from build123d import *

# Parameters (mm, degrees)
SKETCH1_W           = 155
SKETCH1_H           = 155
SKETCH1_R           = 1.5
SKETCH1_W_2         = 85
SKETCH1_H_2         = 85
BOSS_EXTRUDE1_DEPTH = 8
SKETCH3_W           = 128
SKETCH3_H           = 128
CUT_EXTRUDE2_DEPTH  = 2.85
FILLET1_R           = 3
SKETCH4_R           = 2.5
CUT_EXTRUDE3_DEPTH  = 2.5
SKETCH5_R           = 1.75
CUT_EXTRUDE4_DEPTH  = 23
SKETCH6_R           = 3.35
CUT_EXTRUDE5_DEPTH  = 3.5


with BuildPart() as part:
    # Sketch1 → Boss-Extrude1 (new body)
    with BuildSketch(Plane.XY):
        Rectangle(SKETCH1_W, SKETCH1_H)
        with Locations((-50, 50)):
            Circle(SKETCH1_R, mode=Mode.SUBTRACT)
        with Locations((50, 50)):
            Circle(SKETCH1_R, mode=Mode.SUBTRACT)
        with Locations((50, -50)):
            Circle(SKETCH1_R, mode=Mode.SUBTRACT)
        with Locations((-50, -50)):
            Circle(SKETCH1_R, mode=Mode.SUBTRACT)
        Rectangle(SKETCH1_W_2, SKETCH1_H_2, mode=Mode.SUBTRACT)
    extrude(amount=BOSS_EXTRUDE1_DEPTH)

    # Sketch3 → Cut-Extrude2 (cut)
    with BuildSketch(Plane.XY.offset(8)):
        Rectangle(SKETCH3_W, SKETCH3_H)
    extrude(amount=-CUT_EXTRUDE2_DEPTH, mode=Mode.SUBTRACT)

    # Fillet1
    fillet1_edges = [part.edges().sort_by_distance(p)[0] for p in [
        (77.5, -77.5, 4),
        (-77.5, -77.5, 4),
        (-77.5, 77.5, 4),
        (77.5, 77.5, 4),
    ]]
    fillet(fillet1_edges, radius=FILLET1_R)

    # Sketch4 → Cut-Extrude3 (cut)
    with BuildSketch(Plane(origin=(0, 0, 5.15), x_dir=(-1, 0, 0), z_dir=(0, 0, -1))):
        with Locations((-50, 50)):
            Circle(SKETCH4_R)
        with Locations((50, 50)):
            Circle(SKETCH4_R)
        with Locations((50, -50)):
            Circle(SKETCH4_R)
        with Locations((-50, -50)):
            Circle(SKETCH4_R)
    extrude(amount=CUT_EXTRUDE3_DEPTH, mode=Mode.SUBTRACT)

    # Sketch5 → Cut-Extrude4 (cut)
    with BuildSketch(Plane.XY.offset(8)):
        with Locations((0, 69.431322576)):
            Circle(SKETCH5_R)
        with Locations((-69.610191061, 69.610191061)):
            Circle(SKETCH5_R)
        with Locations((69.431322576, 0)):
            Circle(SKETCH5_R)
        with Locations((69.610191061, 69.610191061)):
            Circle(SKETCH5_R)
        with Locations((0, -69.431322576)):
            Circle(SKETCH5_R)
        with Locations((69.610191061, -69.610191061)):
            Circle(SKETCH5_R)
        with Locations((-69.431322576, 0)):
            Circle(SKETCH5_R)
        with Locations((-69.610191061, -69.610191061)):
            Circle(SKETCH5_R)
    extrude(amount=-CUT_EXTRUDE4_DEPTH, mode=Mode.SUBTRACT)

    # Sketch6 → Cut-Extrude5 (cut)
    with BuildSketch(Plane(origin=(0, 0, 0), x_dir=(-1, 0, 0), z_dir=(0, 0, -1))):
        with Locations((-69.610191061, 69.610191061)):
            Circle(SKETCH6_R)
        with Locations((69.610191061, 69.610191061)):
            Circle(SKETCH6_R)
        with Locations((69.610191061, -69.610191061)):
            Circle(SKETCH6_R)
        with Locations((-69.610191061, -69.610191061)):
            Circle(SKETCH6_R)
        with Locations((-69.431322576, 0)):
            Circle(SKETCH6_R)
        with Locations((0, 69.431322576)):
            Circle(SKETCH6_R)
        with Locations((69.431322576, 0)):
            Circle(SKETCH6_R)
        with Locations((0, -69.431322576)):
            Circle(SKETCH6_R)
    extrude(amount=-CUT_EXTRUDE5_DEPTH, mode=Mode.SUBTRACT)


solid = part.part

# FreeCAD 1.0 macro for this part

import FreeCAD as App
import Part
import Sketcher
from FreeCAD import Vector
Q = App.Units.Quantity


def edges_at(feature, points):
    """Names of the edges that pass closest to the given points."""
    edges = feature.Shape.Edges
    near = lambda p: min(range(len(edges)), key=lambda i: edges[i].distToShape(Part.Vertex(*p))[0])
    return sorted({f"Edge{near(p) + 1}" for p in points})

doc = App.newDocument("Part")
body = doc.addObject("PartDesign::Body", "Body")

# Sketch on XY plane
sketch1 = doc.addObject("Sketcher::SketchObject", "Sketch")
body.addObject(sketch1)
sketch1.AttachmentSupport = (doc.XY_Plane, [""])
sketch1.MapMode = "FlatFace"
sketch1.addGeometry([
    Part.LineSegment(Vector(-77.5, 77.5, 0), Vector(-77.5, -77.5, 0)),  # 0
    Part.LineSegment(Vector(-77.5, -77.5, 0), Vector(77.5, -77.5, 0)),  # 1
    Part.LineSegment(Vector(77.5, -77.5, 0), Vector(77.5, 77.5, 0)),  # 2
    Part.LineSegment(Vector(77.5, 77.5, 0), Vector(-77.5, 77.5, 0)),  # 3
    Part.Circle(Vector(-50, -50, 0), Vector(0, 0, 1), 1.5),  # 4
    Part.LineSegment(Vector(42.5, -42.5, 0), Vector(-42.5, -42.5, 0)),  # 5
    Part.LineSegment(Vector(-42.5, -42.5, 0), Vector(-42.5, 42.5, 0)),  # 6
    Part.LineSegment(Vector(-42.5, 42.5, 0), Vector(42.5, 42.5, 0)),  # 7
    Part.LineSegment(Vector(42.5, 42.5, 0), Vector(42.5, -42.5, 0)),  # 8
    Part.Circle(Vector(50, -50, 0), Vector(0, 0, 1), 1.5),  # 9
    Part.Circle(Vector(-50, 50, 0), Vector(0, 0, 1), 1.5),  # 10
    Part.Circle(Vector(50, 50, 0), Vector(0, 0, 1), 1.5),  # 11
], False)
sketch1.addConstraint([
    Sketcher.Constraint("Coincident", 0, 2, 1, 1),
    Sketcher.Constraint("Coincident", 1, 2, 2, 1),
    Sketcher.Constraint("Coincident", 2, 2, 3, 1),
    Sketcher.Constraint("Coincident", 3, 2, 0, 1),
    Sketcher.Constraint("Coincident", 5, 2, 6, 1),
    Sketcher.Constraint("Coincident", 6, 2, 7, 1),
    Sketcher.Constraint("Coincident", 7, 2, 8, 1),
    Sketcher.Constraint("Coincident", 8, 2, 5, 1),
    Sketcher.Constraint("Vertical", 0),
    Sketcher.Constraint("Horizontal", 1),
    Sketcher.Constraint("Vertical", 2),
    Sketcher.Constraint("Horizontal", 3),
    Sketcher.Constraint("Horizontal", 5),
    Sketcher.Constraint("Vertical", 6),
    Sketcher.Constraint("Horizontal", 7),
    Sketcher.Constraint("Vertical", 8),
    Sketcher.Constraint("Equal", 4, 9),
    Sketcher.Constraint("Equal", 9, 10),
    Sketcher.Constraint("Equal", 10, 11),
    Sketcher.Constraint("Symmetric", 9, 3, 10, 3, -1, 1),
    Sketcher.Constraint("Symmetric", 4, 3, 11, 3, -1, 1),
    Sketcher.Constraint("Symmetric", 0, 2, 2, 2, -1, 1),
    Sketcher.Constraint("Symmetric", 5, 2, 7, 2, -1, 1),
    Sketcher.Constraint("Symmetric", 4, 3, 9, 3, -2),
    Sketcher.Constraint("Equal", 3, 0),
    Sketcher.Constraint("Equal", 7, 6),
    Sketcher.Constraint("Diameter", 4, Q("3 mm")),
    Sketcher.Constraint("DistanceX", 1, 1, 1, 2, Q("155 mm")),
    Sketcher.Constraint("DistanceX", 5, 2, 5, 1, Q("85 mm")),
    Sketcher.Constraint("DistanceX", 4, 3, -1, 1, Q("50 mm")),
    Sketcher.Constraint("DistanceY", 4, 3, -1, 1, Q("50 mm")),
])
pad1 = doc.addObject("PartDesign::Pad", "Pad")
body.addObject(pad1)
pad1.Profile = sketch1
pad1.Length = 8

# Sketch on XY plane
sketch2 = doc.addObject("Sketcher::SketchObject", "Sketch001")
body.addObject(sketch2)
sketch2.AttachmentSupport = (doc.XY_Plane, [""])
sketch2.MapMode = "FlatFace"
sketch2.AttachmentOffset = App.Placement(Vector(0, 0, 8), App.Rotation())
sketch2.addGeometry([
    Part.LineSegment(Vector(-64, 64, 0), Vector(-64, -64, 0)),
    Part.LineSegment(Vector(-64, -64, 0), Vector(64, -64, 0)),
    Part.LineSegment(Vector(64, -64, 0), Vector(64, 64, 0)),
    Part.LineSegment(Vector(64, 64, 0), Vector(-64, 64, 0)),
], False)
sketch2.addConstraint([
    Sketcher.Constraint("Coincident", 0, 2, 1, 1),
    Sketcher.Constraint("Coincident", 1, 2, 2, 1),
    Sketcher.Constraint("Coincident", 2, 2, 3, 1),
    Sketcher.Constraint("Coincident", 3, 2, 0, 1),
    Sketcher.Constraint("Vertical", 0),
    Sketcher.Constraint("Horizontal", 1),
    Sketcher.Constraint("Vertical", 2),
    Sketcher.Constraint("Horizontal", 3),
    Sketcher.Constraint("Symmetric", 0, 2, 2, 2, -1, 1),
    Sketcher.Constraint("Equal", 3, 0),
    Sketcher.Constraint("DistanceX", 1, 1, 1, 2, Q("128 mm")),
])
pocket1 = doc.addObject("PartDesign::Pocket", "Pocket")
body.addObject(pocket1)
pocket1.Profile = sketch2
pocket1.Length = 2.85
doc.recompute()

fillet = doc.addObject("PartDesign::Fillet", "Fillet")
body.addObject(fillet)
fillet.Base = (pocket1, edges_at(pocket1, [
    (77.5, -77.5, 4),
    (-77.5, -77.5, 4),
    (-77.5, 77.5, 4),
    (77.5, 77.5, 4),
]))
fillet.Radius = 3

# Sketch on XY plane
sketch3 = doc.addObject("Sketcher::SketchObject", "Sketch002")
body.addObject(sketch3)
sketch3.AttachmentSupport = (doc.XY_Plane, [""])
sketch3.MapMode = "FlatFace"
sketch3.AttachmentOffset = App.Placement(Vector(0, 0, 5.15), App.Rotation())
sketch3.addGeometry([
    Part.Circle(Vector(50, 50, 0), Vector(0, 0, 1), 2.5),
    Part.Circle(Vector(-50, 50, 0), Vector(0, 0, 1), 2.5),
    Part.Circle(Vector(-50, -50, 0), Vector(0, 0, 1), 2.5),
    Part.Circle(Vector(50, -50, 0), Vector(0, 0, 1), 2.5),
], False)
sketch3.addConstraint([
    Sketcher.Constraint("Equal", 0, 1),
    Sketcher.Constraint("Equal", 1, 2),
    Sketcher.Constraint("Equal", 2, 3),
    Sketcher.Constraint("Symmetric", 0, 3, 2, 3, -1, 1),
    Sketcher.Constraint("Symmetric", 1, 3, 3, 3, -1, 1),
    Sketcher.Constraint("Symmetric", 0, 3, 1, 3, -2),
    Sketcher.Constraint("Diameter", 0, Q("5 mm")),
    Sketcher.Constraint("DistanceX", -1, 1, 0, 3, Q("50 mm")),
    Sketcher.Constraint("DistanceY", -1, 1, 0, 3, Q("50 mm")),
])
pocket2 = doc.addObject("PartDesign::Pocket", "Pocket001")
body.addObject(pocket2)
pocket2.Profile = sketch3
pocket2.Length = 2.5

# Sketch on XY plane
sketch4 = doc.addObject("Sketcher::SketchObject", "Sketch003")
body.addObject(sketch4)
sketch4.AttachmentSupport = (doc.XY_Plane, [""])
sketch4.MapMode = "FlatFace"
sketch4.AttachmentOffset = App.Placement(Vector(0, 0, 8), App.Rotation())
sketch4.addGeometry([
    Part.Circle(Vector(0, 69.431323, 0), Vector(0, 0, 1), 1.75),  # 0
    Part.Circle(Vector(-69.610191, 69.610191, 0), Vector(0, 0, 1), 1.75),  # 1
    Part.Circle(Vector(69.431323, 0, 0), Vector(0, 0, 1), 1.75),  # 2
    Part.Circle(Vector(69.610191, 69.610191, 0), Vector(0, 0, 1), 1.75),  # 3
    Part.Circle(Vector(0, -69.431323, 0), Vector(0, 0, 1), 1.75),  # 4
    Part.Circle(Vector(69.610191, -69.610191, 0), Vector(0, 0, 1), 1.75),  # 5
    Part.Circle(Vector(-69.431323, 0, 0), Vector(0, 0, 1), 1.75),  # 6
    Part.Circle(Vector(-69.610191, -69.610191, 0), Vector(0, 0, 1), 1.75),  # 7
], False)
sketch4.addConstraint([
    Sketcher.Constraint("Equal", 0, 1),
    Sketcher.Constraint("Equal", 1, 2),
    Sketcher.Constraint("Equal", 2, 3),
    Sketcher.Constraint("Equal", 3, 4),
    Sketcher.Constraint("Equal", 4, 5),
    Sketcher.Constraint("Equal", 5, 6),
    Sketcher.Constraint("Equal", 6, 7),
    Sketcher.Constraint("Symmetric", 0, 3, 4, 3, -1, 1),
    Sketcher.Constraint("Symmetric", 1, 3, 5, 3, -1, 1),
    Sketcher.Constraint("Symmetric", 2, 3, 6, 3, -1, 1),
    Sketcher.Constraint("Symmetric", 3, 3, 7, 3, -1, 1),
    Sketcher.Constraint("Symmetric", 1, 3, 3, 3, -2),
    Sketcher.Constraint("PointOnObject", 0, 3, -2),
    Sketcher.Constraint("PointOnObject", 2, 3, -1),
    Sketcher.Constraint("Diameter", 0, Q("3.5 mm")),
    Sketcher.Constraint("DistanceX", 1, 3, -1, 1, Q("69.610191 mm")),
    Sketcher.Constraint("DistanceY", -1, 1, 1, 3, Q("69.610191 mm")),
    Sketcher.Constraint("DistanceY", 0, 3, 1, 3, Q("0.178868 mm")),
    Sketcher.Constraint("DistanceX", 2, 3, 3, 3, Q("0.178868 mm")),
])
pocket3 = doc.addObject("PartDesign::Pocket", "Pocket002")
body.addObject(pocket3)
pocket3.Profile = sketch4
pocket3.Length = 23

# Sketch on XY plane
sketch5 = doc.addObject("Sketcher::SketchObject", "Sketch004")
body.addObject(sketch5)
sketch5.AttachmentSupport = (doc.XY_Plane, [""])
sketch5.MapMode = "FlatFace"
sketch5.addGeometry([
    Part.Circle(Vector(69.610191, 69.610191, 0), Vector(0, 0, 1), 3.35),  # 0
    Part.Circle(Vector(-69.610191, 69.610191, 0), Vector(0, 0, 1), 3.35),  # 1
    Part.Circle(Vector(-69.610191, -69.610191, 0), Vector(0, 0, 1), 3.35),  # 2
    Part.Circle(Vector(69.610191, -69.610191, 0), Vector(0, 0, 1), 3.35),  # 3
    Part.Circle(Vector(69.431323, 0, 0), Vector(0, 0, 1), 3.35),  # 4
    Part.Circle(Vector(0, 69.431323, 0), Vector(0, 0, 1), 3.35),  # 5
    Part.Circle(Vector(-69.431323, 0, 0), Vector(0, 0, 1), 3.35),  # 6
    Part.Circle(Vector(0, -69.431323, 0), Vector(0, 0, 1), 3.35),  # 7
], False)
sketch5.addConstraint([
    Sketcher.Constraint("Equal", 0, 1),
    Sketcher.Constraint("Equal", 1, 2),
    Sketcher.Constraint("Equal", 2, 3),
    Sketcher.Constraint("Equal", 3, 4),
    Sketcher.Constraint("Equal", 4, 5),
    Sketcher.Constraint("Equal", 5, 6),
    Sketcher.Constraint("Equal", 6, 7),
    Sketcher.Constraint("Symmetric", 0, 3, 2, 3, -1, 1),
    Sketcher.Constraint("Symmetric", 1, 3, 3, 3, -1, 1),
    Sketcher.Constraint("Symmetric", 4, 3, 6, 3, -1, 1),
    Sketcher.Constraint("Symmetric", 5, 3, 7, 3, -1, 1),
    Sketcher.Constraint("Symmetric", 0, 3, 1, 3, -2),
    Sketcher.Constraint("PointOnObject", 4, 3, -1),
    Sketcher.Constraint("PointOnObject", 5, 3, -2),
    Sketcher.Constraint("Diameter", 0, Q("6.7 mm")),
    Sketcher.Constraint("DistanceX", -1, 1, 0, 3, Q("69.610191 mm")),
    Sketcher.Constraint("DistanceY", -1, 1, 0, 3, Q("69.610191 mm")),
    Sketcher.Constraint("DistanceX", 4, 3, 0, 3, Q("0.178868 mm")),
    Sketcher.Constraint("DistanceY", 5, 3, 0, 3, Q("0.178868 mm")),
])
pocket4 = doc.addObject("PartDesign::Pocket", "Pocket003")
body.addObject(pocket4)
pocket4.Profile = sketch5
pocket4.Length = 3.5
pocket4.Reversed = True

doc.recompute()
